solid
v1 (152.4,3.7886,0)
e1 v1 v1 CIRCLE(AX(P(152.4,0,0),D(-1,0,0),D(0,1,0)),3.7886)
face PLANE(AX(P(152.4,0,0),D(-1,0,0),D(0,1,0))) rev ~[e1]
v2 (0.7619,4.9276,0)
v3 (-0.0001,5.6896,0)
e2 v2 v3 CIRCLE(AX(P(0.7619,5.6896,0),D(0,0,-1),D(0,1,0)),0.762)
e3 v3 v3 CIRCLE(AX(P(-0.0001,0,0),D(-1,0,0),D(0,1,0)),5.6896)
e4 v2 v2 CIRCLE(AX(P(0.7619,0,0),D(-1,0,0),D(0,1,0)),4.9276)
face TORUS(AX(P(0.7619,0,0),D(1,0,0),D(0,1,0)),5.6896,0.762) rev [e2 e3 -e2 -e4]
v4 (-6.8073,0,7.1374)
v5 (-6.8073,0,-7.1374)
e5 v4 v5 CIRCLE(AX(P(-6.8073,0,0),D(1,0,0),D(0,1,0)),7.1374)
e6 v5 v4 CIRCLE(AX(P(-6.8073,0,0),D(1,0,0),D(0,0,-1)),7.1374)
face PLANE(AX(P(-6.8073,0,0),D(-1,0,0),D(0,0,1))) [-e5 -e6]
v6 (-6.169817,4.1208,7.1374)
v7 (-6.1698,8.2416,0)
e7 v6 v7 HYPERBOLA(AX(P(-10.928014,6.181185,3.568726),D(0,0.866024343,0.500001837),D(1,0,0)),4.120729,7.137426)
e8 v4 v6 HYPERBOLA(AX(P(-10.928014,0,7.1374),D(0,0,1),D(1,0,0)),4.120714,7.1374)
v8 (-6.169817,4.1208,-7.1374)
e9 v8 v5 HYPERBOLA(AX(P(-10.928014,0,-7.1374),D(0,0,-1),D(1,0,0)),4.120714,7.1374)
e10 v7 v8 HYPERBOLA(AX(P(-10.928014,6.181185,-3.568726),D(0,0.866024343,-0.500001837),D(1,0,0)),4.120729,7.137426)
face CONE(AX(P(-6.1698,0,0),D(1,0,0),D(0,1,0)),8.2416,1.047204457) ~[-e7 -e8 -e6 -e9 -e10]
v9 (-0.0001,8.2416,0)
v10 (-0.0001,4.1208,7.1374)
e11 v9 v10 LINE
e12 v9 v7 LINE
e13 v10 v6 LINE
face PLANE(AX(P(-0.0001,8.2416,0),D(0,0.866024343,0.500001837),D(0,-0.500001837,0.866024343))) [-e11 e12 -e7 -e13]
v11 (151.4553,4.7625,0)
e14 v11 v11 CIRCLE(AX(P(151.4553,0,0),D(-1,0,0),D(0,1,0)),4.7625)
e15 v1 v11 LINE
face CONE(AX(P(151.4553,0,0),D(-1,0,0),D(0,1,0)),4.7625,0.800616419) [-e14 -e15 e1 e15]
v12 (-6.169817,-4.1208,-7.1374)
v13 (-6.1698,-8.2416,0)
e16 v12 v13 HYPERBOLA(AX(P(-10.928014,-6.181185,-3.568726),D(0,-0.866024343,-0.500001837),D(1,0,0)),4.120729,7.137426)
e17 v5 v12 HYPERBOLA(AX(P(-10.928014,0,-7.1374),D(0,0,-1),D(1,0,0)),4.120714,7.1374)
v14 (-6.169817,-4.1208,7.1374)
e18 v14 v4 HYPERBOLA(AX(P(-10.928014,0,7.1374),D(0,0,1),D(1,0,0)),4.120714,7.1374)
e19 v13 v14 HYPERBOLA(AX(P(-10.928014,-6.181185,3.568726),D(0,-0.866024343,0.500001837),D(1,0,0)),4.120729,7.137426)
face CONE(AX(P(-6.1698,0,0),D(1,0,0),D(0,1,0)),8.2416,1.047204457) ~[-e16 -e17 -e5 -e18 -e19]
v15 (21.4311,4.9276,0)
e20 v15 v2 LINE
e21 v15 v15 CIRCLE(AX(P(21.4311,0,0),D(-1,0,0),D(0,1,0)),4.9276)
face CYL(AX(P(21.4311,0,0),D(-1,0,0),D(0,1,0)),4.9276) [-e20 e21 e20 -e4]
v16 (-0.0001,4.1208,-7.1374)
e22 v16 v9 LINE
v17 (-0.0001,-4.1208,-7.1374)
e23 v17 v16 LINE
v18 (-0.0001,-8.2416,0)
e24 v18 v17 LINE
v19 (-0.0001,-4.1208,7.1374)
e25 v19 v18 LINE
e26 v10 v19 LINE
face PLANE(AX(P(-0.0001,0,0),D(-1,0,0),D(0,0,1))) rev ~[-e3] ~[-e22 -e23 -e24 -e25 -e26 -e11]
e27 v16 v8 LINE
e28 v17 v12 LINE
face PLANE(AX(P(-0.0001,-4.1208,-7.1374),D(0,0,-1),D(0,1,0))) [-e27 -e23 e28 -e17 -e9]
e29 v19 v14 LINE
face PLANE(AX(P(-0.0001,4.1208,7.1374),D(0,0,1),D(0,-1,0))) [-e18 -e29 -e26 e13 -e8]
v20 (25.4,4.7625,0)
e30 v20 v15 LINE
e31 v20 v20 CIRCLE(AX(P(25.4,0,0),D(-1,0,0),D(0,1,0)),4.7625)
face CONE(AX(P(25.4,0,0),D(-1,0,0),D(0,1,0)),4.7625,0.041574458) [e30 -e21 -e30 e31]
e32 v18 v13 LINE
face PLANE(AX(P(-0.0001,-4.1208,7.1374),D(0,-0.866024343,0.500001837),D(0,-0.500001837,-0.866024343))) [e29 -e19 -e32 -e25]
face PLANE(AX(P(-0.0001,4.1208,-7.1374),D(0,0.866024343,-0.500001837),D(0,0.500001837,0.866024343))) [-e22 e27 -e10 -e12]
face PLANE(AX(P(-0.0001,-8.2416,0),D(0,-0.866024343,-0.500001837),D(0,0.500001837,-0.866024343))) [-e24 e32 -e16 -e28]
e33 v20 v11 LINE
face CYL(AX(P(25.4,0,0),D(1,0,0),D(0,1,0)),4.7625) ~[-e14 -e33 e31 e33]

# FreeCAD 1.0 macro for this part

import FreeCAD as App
import Part
import Sketcher

V = App.Vector
Q = App.Units.Quantity


def edges_at(feature, points):
    """Names of the edges that pass closest to the given points."""
    edges = feature.Shape.Edges
    near = lambda p: min(range(len(edges)), key=lambda i: edges[i].distToShape(Part.Vertex(*p))[0])
    return sorted({f"Edge{near(p) + 1}" for p in points})

doc = App.newDocument("Part")
params = doc.addObject("Spreadsheet::Sheet", "Params")
for row, (alias, value) in enumerate([
    ("sketch1_width", "5 in"),
    ("sketch1_width2", "6 in"),
    ("sketch1_height", "0.194 in"),
    ("sketch1_height2", "0.1875 in"),
    ("revolution_angle", "360 deg"),
    ("pad1_length", "0.268 in"),
    ("groove_angle", "360 deg"),
    ("chamfer_size", "0.9739 mm"),
    ("chamfer_size2", "0.0371929 in"),
    ("fillet_radius", "0.03 in"),
], start=1):
    params.set(f"A{row}", alias)
    params.set(f"B{row}", "=" + value)
    params.setAlias(f"B{row}", alias)

body = doc.addObject("PartDesign::Body", "Body")

# Sketch on XY plane
sketch1 = body.newObject("Sketcher::SketchObject", "Sketch")
sketch1.AttachmentSupport = (doc.getObject("XY_Plane"), [""])
sketch1.MapMode = "FlatFace"
sketch1.addGeometry([
    Part.LineSegment(V(152.4, 4.7625, 0), V(25.4, 4.7625, 0)),  # 0
    Part.LineSegment(V(25.4, 4.7625, 0), V(21.4311, 4.9276, 0)),  # 1
    Part.LineSegment(V(21.4311, 4.9276, 0), V(0, 4.9276, 0)),  # 2
    Part.LineSegment(V(-0.000031, 4.9276, 0), V(-0.0001, 0, 0)),  # 3
    Part.LineSegment(V(-0.0001, 0, 0), V(152.4, 0, 0)),  # 4
    Part.LineSegment(V(152.4, 0, 0), V(152.4, 4.7625, 0)),  # 5
], False)
sketch1.addConstraint([
    Sketcher.Constraint("Coincident", 0, 2, 1, 1),
    Sketcher.Constraint("Coincident", 1, 2, 2, 1),
    Sketcher.Constraint("Coincident", 2, 2, 3, 1),
    Sketcher.Constraint("Coincident", 3, 2, 4, 1),
    Sketcher.Constraint("Coincident", 4, 2, 5, 1),
    Sketcher.Constraint("Coincident", 5, 2, 0, 1),
    Sketcher.Constraint("Horizontal", 0),
    Sketcher.Constraint("Horizontal", 2),
    Sketcher.Constraint("Vertical", 3),
    Sketcher.Constraint("Horizontal", 4),
    Sketcher.Constraint("Vertical", 5),
    Sketcher.Constraint("Coincident", 3, 2, -1, 1),
    Sketcher.Constraint("DistanceX", 0, 2, 0, 1, Q("5 in")),
    Sketcher.Constraint("DistanceX", 4, 1, 4, 2, Q("6 in")),
    Sketcher.Constraint("DistanceX", 2, 2, 2, 1, 21.431),
    Sketcher.Constraint("DistanceY", 3, 2, 3, 1, Q("0.194 in")),
    Sketcher.Constraint("DistanceY", 5, 1, 5, 2, Q("0.1875 in")),
])
sketch1.setExpression("Constraints[12]", "Params.sketch1_width")
sketch1.setExpression("Constraints[13]", "Params.sketch1_width2")
sketch1.setExpression("Constraints[15]", "Params.sketch1_height")
sketch1.setExpression("Constraints[16]", "Params.sketch1_height2")
revolution = body.newObject("PartDesign::Revolution", "Revolution")
revolution.Profile = sketch1
revolution.ReferenceAxis = (sketch1, ["H_Axis"])
revolution.setExpression("Angle", "Params.revolution_angle")

# Sketch on YZ plane
sketch2 = body.newObject("Sketcher::SketchObject", "Sketch001")
sketch2.AttachmentSupport = (doc.getObject("YZ_Plane"), [""])
sketch2.MapMode = "FlatFace"
sketch2.AttachmentOffset = App.Placement(V(0, 0, -0.0000039 * 25.4), App.Rotation())
sketch2.addGeometry([
    Part.LineSegment(V(4.1208, 7.1374, 0), V(8.2416, 0, 0)),  # 0
    Part.LineSegment(V(8.2416, 0, 0), V(4.1208, -7.1374, 0)),  # 1
    Part.LineSegment(V(4.1208, -7.1374, 0), V(-4.1208, -7.1374, 0)),  # 2
    Part.LineSegment(V(-4.1208, -7.1374, 0), V(-8.2416, 0, 0)),  # 3
    Part.LineSegment(V(-8.2416, 0, 0), V(-4.1208, 7.1374, 0)),  # 4
    Part.LineSegment(V(-4.1208, 7.1374, 0), V(4.1208, 7.1374, 0)),  # 5
], False)
sketch2.addConstraint([
    Sketcher.Constraint("Coincident", 0, 2, 1, 1),
    Sketcher.Constraint("Coincident", 1, 2, 2, 1),
    Sketcher.Constraint("Coincident", 2, 2, 3, 1),
    Sketcher.Constraint("Coincident", 3, 2, 4, 1),
    Sketcher.Constraint("Coincident", 4, 2, 5, 1),
    Sketcher.Constraint("Coincident", 5, 2, 0, 1),
    Sketcher.Constraint("Horizontal", 2),
    Sketcher.Constraint("Horizontal", 5),
    Sketcher.Constraint("Symmetric", 0, 2, 3, 2, -1, 1),
    Sketcher.Constraint("Symmetric", 1, 2, 4, 2, -1, 1),
    Sketcher.Constraint("PointOnObject", 0, 2, -1),
    Sketcher.Constraint("Parallel", 0, 3),
    Sketcher.Constraint("Vertical", 2, 2, 4, 2),
    Sketcher.Constraint("Angle", 0, Q("-59.9999 deg")),
    Sketcher.Constraint("DistanceY", 2, 2, 4, 2, Q("0.562 in")),
    Sketcher.Constraint("DistanceX", 2, 2, 2, 1, 8.2416),
])
pad1 = body.newObject("PartDesign::Pad", "Pad")
pad1.Profile = sketch2
pad1.setExpression("Length", "Params.pad1_length")
pad1.Reversed = True

# Sketch on XY plane
sketch3 = body.newObject("Sketcher::SketchObject", "Sketch002")
sketch3.AttachmentSupport = (doc.getObject("XY_Plane"), [""])
sketch3.MapMode = "FlatFace"
sketch3.addGeometry([
    Part.LineSegment(V(-6.8073, 8.2416, 0), V(-6.8073, 7.1374, 0)),
    Part.LineSegment(V(-6.8073, 7.1374, 0), V(-6.1698, 8.2416, 0)),
    Part.LineSegment(V(-6.1698, 8.2416, 0), V(-6.8073, 8.2416, 0)),
], False)
sketch3.addConstraint([
    Sketcher.Constraint("Coincident", 0, 2, 1, 1),
    Sketcher.Constraint("Coincident", 1, 2, 2, 1),
    Sketcher.Constraint("Coincident", 2, 2, 0, 1),
    Sketcher.Constraint("Vertical", 0),
    Sketcher.Constraint("Horizontal", 2),
    Sketcher.Constraint("Angle", 1, Q("60.0004 deg")),
    Sketcher.Constraint("DistanceX", 2, 2, 2, 1, Q("0.0251 in")),
    Sketcher.Constraint("DistanceX", 0, 2, -1, 1, Q("0.268 in")),
    Sketcher.Constraint("DistanceY", -1, 1, 0, 2, Q("0.281 in")),
])
groove = body.newObject("PartDesign::Groove", "Groove")
groove.Profile = sketch3
groove.ReferenceAxis = (sketch3, ["H_Axis"])
groove.setExpression("Angle", "Params.groove_angle")
doc.recompute()

chamfer = body.newObject("PartDesign::Chamfer", "Chamfer")
chamfer.Base = (groove, edges_at(groove, [(152.4, -4.763, 0)]))
chamfer.ChamferType = "Two distances"
chamfer.setExpression("Size", "Params.chamfer_size")
chamfer.setExpression("Size2", "Params.chamfer_size2")
doc.recompute()

fillet = body.newObject("PartDesign::Fillet", "Fillet")
fillet.Base = (chamfer, edges_at(chamfer, [(0, -4.928, 0)]))
fillet.setExpression("Radius", "Params.fillet_radius")

doc.recompute()
